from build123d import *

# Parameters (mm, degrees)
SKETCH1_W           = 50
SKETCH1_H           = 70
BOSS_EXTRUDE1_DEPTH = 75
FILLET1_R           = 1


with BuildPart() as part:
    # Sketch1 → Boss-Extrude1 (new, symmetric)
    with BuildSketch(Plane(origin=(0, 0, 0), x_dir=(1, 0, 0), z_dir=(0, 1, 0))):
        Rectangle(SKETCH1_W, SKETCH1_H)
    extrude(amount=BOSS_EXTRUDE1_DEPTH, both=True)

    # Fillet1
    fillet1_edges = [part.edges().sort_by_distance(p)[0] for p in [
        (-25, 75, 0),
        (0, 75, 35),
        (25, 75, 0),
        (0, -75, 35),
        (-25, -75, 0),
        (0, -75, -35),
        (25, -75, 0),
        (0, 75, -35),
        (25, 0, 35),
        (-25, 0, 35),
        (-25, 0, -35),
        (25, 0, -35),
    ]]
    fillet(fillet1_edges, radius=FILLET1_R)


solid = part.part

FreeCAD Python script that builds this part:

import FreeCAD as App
import Part
import Sketcher
from FreeCAD import Vector
Q = App.Units.Quantity

doc = App.newDocument("Part")
body = doc.addObject("PartDesign::Body", "Body")

sketch1 = doc.addObject("Sketcher::SketchObject", "Sketch")
body.addObject(sketch1)
sketch1.AttachmentSupport = (doc.XZ_Plane, [""])
sketch1.MapMode = "FlatFace"
sketch1.addGeometry([
    Part.LineSegment(Vector(-25, -35, 0), Vector(-25, 35, 0)),
    Part.LineSegment(Vector(-25, 35, 0), Vector(25, 35, 0)),
    Part.LineSegment(Vector(25, 35, 0), Vector(25, -35, 0)),
    Part.LineSegment(Vector(25, -35, 0), Vector(-25, -35, 0)),
], False)
sketch1.addConstraint([
    Sketcher.Constraint("Coincident", 0, 2, 1, 1),
    Sketcher.Constraint("Coincident", 1, 2, 2, 1),
    Sketcher.Constraint("Coincident", 2, 2, 3, 1),
    Sketcher.Constraint("Coincident", 3, 2, 0, 1),
    Sketcher.Constraint("Vertical", 0),
    Sketcher.Constraint("Horizontal", 1),
    Sketcher.Constraint("Vertical", 2),
    Sketcher.Constraint("Horizontal", 3),
    Sketcher.Constraint("Symmetric", 0, 2, 2, 2, -1, 1),
    Sketcher.Constraint("DistanceX", 1, 1, 1, 2, Q("50 mm")),
    Sketcher.Constraint("DistanceY", 0, 1, 0, 2, Q("70 mm")),
])
pad1 = doc.addObject("PartDesign::Pad", "Pad")
body.addObject(pad1)
pad1.Profile = sketch1
pad1.Length = 150
pad1.Midplane = True
doc.recompute()

fillet = doc.addObject("PartDesign::Fillet", "Fillet")
body.addObject(fillet)
fillet.Base = (pad1, ["Edge1"])
fillet.UseAllEdges = True
fillet.Radius = 1

doc.recompute()
